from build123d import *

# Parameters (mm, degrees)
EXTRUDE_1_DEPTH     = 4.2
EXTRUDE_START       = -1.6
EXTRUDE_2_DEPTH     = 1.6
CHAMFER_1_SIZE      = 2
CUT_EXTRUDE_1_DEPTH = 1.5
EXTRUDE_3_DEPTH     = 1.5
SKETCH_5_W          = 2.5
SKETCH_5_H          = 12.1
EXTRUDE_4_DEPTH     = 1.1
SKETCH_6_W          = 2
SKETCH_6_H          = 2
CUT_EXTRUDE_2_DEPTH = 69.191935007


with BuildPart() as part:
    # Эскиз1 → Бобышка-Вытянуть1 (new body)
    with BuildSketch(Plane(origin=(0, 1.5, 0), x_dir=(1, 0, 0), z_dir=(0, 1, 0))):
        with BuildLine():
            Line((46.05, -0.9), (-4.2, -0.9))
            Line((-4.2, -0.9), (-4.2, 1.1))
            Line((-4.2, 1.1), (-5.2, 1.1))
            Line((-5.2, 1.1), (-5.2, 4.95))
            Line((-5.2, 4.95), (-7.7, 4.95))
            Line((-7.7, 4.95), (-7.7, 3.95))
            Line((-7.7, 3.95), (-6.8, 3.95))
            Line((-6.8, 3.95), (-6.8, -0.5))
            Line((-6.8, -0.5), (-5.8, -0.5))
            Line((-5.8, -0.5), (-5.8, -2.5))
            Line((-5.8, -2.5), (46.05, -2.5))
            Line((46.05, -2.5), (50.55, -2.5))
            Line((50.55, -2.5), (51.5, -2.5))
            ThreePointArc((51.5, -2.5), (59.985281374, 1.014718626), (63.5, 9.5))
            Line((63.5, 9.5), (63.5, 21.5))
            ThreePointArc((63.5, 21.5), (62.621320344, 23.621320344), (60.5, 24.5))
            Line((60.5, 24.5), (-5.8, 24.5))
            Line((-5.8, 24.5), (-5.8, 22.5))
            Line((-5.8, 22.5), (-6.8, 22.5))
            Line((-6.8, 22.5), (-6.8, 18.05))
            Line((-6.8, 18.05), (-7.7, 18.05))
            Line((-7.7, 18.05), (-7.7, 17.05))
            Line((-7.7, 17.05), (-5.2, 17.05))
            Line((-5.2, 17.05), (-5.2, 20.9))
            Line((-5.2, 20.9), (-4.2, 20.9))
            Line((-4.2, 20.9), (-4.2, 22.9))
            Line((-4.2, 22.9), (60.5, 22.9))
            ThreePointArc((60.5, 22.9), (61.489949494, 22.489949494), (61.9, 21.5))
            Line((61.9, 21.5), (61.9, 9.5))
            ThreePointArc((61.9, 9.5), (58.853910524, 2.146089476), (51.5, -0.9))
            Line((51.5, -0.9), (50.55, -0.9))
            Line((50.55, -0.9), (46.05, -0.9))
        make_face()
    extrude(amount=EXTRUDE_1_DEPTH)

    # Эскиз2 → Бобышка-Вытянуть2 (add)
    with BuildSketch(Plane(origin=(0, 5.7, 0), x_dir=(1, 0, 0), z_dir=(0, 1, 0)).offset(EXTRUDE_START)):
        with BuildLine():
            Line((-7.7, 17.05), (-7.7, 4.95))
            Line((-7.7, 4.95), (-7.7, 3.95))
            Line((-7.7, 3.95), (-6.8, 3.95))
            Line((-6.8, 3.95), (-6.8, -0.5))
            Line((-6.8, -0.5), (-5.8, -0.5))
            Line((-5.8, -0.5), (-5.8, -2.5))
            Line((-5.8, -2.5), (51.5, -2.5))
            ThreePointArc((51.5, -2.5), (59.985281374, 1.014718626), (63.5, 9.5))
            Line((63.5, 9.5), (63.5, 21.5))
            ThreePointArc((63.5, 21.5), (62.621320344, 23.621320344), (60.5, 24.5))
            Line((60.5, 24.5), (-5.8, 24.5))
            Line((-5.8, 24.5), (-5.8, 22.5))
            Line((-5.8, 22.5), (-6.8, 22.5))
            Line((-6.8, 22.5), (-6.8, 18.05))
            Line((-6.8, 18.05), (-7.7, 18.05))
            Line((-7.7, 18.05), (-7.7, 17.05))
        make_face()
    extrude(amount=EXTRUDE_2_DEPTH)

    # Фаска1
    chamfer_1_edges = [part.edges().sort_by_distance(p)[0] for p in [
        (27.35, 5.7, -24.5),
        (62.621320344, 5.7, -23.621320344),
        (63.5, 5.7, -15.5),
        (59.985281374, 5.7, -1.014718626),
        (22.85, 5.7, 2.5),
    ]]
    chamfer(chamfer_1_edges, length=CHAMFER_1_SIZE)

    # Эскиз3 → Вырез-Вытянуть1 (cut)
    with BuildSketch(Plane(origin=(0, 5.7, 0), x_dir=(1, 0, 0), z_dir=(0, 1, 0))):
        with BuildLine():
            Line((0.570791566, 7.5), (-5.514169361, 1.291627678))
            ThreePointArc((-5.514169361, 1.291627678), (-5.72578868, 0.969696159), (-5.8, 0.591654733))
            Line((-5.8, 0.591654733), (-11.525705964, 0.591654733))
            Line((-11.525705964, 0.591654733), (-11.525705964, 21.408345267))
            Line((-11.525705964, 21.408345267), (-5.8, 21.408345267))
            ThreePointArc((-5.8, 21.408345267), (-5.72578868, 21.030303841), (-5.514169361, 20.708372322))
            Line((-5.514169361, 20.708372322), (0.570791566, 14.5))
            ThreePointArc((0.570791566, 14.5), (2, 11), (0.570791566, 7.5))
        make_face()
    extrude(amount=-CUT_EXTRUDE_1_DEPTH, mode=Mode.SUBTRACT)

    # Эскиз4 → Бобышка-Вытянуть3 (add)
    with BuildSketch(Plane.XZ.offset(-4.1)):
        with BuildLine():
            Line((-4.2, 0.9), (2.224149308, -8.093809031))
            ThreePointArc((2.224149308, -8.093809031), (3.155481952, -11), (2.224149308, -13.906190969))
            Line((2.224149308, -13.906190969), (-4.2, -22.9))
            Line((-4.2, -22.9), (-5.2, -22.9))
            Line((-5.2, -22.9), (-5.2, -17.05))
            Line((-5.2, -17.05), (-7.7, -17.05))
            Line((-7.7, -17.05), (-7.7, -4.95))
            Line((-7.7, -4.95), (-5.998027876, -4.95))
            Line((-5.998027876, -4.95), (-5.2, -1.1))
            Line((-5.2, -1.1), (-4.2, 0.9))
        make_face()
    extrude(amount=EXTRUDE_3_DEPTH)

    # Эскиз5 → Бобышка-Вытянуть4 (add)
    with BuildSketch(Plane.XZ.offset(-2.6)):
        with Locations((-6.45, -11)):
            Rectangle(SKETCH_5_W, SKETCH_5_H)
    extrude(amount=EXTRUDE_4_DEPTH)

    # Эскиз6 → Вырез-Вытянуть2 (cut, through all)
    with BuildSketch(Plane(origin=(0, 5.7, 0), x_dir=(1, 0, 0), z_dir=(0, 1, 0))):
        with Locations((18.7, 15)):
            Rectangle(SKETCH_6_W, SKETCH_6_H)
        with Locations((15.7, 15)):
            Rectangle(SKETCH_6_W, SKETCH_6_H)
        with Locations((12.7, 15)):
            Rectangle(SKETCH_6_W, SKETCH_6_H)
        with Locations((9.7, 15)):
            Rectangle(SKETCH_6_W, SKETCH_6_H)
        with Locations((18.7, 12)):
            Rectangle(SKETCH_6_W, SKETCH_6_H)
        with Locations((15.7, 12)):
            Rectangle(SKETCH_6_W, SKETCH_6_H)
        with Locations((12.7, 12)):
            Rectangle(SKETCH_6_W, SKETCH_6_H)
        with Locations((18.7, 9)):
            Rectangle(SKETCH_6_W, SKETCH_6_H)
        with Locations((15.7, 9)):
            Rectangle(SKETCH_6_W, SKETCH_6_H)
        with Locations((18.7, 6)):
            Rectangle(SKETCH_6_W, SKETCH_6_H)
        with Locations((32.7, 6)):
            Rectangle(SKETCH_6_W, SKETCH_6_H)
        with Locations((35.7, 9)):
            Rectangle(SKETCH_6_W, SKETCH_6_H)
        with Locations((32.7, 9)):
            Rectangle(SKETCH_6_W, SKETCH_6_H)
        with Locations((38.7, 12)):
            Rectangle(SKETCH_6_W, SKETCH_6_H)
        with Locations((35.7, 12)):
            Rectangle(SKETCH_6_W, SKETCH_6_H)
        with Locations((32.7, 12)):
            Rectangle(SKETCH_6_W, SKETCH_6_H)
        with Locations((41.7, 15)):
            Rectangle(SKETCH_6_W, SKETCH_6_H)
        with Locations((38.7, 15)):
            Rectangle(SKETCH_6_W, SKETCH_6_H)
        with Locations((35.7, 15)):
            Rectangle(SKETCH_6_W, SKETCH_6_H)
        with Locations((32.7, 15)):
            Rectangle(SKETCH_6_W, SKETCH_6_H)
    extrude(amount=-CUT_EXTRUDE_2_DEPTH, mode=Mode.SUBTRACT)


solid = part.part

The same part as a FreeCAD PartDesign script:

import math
import FreeCAD as App
import Part
import Sketcher
from FreeCAD import Vector


def edges_at(feature, points):
    """Names of the edges that pass closest to the given points."""
    edges = feature.Shape.Edges
    near = lambda p: min(range(len(edges)), key=lambda i: edges[i].distToShape(Part.Vertex(*p))[0])
    return sorted({f"Edge{near(p) + 1}" for p in points})


def add_polygon(sketch, points):
    """Adds a closed chain of lines whose ends are joined by coincident constraints."""
    first, n = sketch.GeometryCount, len(points)
    for a, b in zip(points, points[1:] + points[:1]):
        sketch.addGeometry(Part.LineSegment(App.Vector(*a, 0), App.Vector(*b, 0)), False)
    for i in range(n):
        sketch.addConstraint(Sketcher.Constraint("Coincident", first + i, 2, first + (i + 1) % n, 1))

doc = App.newDocument("Part")
body = doc.addObject("PartDesign::Body", "Body")

# Sketch on XZ plane
sketch1 = doc.addObject("Sketcher::SketchObject", "Sketch")
body.addObject(sketch1)
sketch1.AttachmentSupport = (doc.XZ_Plane, [""])
sketch1.MapMode = "FlatFace"
sketch1.AttachmentOffset = App.Placement(Vector(0, 0, -1.5), App.Rotation())
sketch1.addGeometry([
    Part.LineSegment(Vector(-4.2, 0.9, 0), Vector(-4.2, -1.1, 0)),  # 0
    Part.LineSegment(Vector(-4.2, -1.1, 0), Vector(-5.2, -1.1, 0)),  # 1
    Part.LineSegment(Vector(-5.2, -1.1, 0), Vector(-5.2, -5, 0)),  # 2
    Part.LineSegment(Vector(-5.2, -5, 0), Vector(-7.7, -5, 0)),  # 3
    Part.LineSegment(Vector(-7.7, -5, 0), Vector(-7.7, -4, 0)),  # 4
    Part.LineSegment(Vector(-7.7, -4, 0), Vector(-6.8, -4, 0)),  # 5
    Part.LineSegment(Vector(-6.8, -4, 0), Vector(-6.8, 0.5, 0)),  # 6
    Part.LineSegment(Vector(-6.8, 0.5, 0), Vector(-5.8, 0.5, 0)),  # 7
    Part.LineSegment(Vector(-5.8, 0.5, 0), Vector(-5.8, 2.5, 0)),  # 8
    Part.LineSegment(Vector(-5.8, 2.5, 0), Vector(51.5, 2.5, 0)),  # 9
    Part.ArcOfCircle(Part.Circle(Vector(51.5, -9.5, 0), Vector(0, 0, 1), 12), math.radians(0), math.radians(90)),  # 10
    Part.LineSegment(Vector(63.5, -9.5, 0), Vector(63.5, -21.5, 0)),  # 11
    Part.ArcOfCircle(Part.Circle(Vector(60.5, -21.5, 0), Vector(0, 0, 1), 3), math.radians(-90), math.radians(0)),  # 12
    Part.LineSegment(Vector(60.5, -24.5, 0), Vector(-5.8, -24.5, 0)),  # 13
    Part.LineSegment(Vector(-5.8, -24.5, 0), Vector(-5.8, -22.5, 0)),  # 14
    Part.LineSegment(Vector(-5.8, -22.5, 0), Vector(-6.8, -22.5, 0)),  # 15
    Part.LineSegment(Vector(-6.8, -22.5, 0), Vector(-6.8, -18.1, 0)),  # 16
    Part.LineSegment(Vector(-6.8, -18.1, 0), Vector(-7.7, -18.1, 0)),  # 17
    Part.LineSegment(Vector(-7.7, -18.1, 0), Vector(-7.7, -17.1, 0)),  # 18
    Part.LineSegment(Vector(-7.7, -17.1, 0), Vector(-5.2, -17.1, 0)),  # 19
    Part.LineSegment(Vector(-5.2, -17.1, 0), Vector(-5.2, -20.9, 0)),  # 20
    Part.LineSegment(Vector(-5.2, -20.9, 0), Vector(-4.2, -20.9, 0)),  # 21
    Part.LineSegment(Vector(-4.2, -20.9, 0), Vector(-4.2, -22.9, 0)),  # 22
    Part.LineSegment(Vector(-4.2, -22.9, 0), Vector(60.5, -22.9, 0)),  # 23
    Part.ArcOfCircle(Part.Circle(Vector(60.5, -21.5, 0), Vector(0, 0, 1), 1.4), math.radians(-90), math.radians(0)),  # 24
    Part.LineSegment(Vector(61.9, -21.5, 0), Vector(61.9, -9.5, 0)),  # 25
    Part.ArcOfCircle(Part.Circle(Vector(51.5, -9.5, 0), Vector(0, 0, 1), 10.4), math.radians(0), math.radians(90)),  # 26
    Part.LineSegment(Vector(51.5, 0.9, 0), Vector(-4.2, 0.9, 0)),  # 27
], False)
sketch1.addConstraint([
    Sketcher.Constraint("Coincident", 0, 2, 1, 1),
    Sketcher.Constraint("Coincident", 1, 2, 2, 1),
    Sketcher.Constraint("Coincident", 2, 2, 3, 1),
    Sketcher.Constraint("Coincident", 3, 2, 4, 1),
    Sketcher.Constraint("Coincident", 4, 2, 5, 1),
    Sketcher.Constraint("Coincident", 5, 2, 6, 1),
    Sketcher.Constraint("Coincident", 6, 2, 7, 1),
    Sketcher.Constraint("Coincident", 7, 2, 8, 1),
    Sketcher.Constraint("Coincident", 8, 2, 9, 1),
    Sketcher.Constraint("Tangent", 9, 2, 10, 2),
    Sketcher.Constraint("Tangent", 10, 1, 11, 1),
    Sketcher.Constraint("Tangent", 11, 2, 12, 2),
    Sketcher.Constraint("Tangent", 12, 1, 13, 1),
    Sketcher.Constraint("Coincident", 13, 2, 14, 1),
    Sketcher.Constraint("Coincident", 14, 2, 15, 1),
    Sketcher.Constraint("Coincident", 15, 2, 16, 1),
    Sketcher.Constraint("Coincident", 16, 2, 17, 1),
    Sketcher.Constraint("Coincident", 17, 2, 18, 1),
    Sketcher.Constraint("Coincident", 18, 2, 19, 1),
    Sketcher.Constraint("Coincident", 19, 2, 20, 1),
    Sketcher.Constraint("Coincident", 20, 2, 21, 1),
    Sketcher.Constraint("Coincident", 21, 2, 22, 1),
    Sketcher.Constraint("Coincident", 22, 2, 23, 1),
    Sketcher.Constraint("Tangent", 23, 2, 24, 1),
    Sketcher.Constraint("Tangent", 24, 2, 25, 1),
    Sketcher.Constraint("Tangent", 25, 2, 26, 1),
    Sketcher.Constraint("Tangent", 26, 2, 27, 1),
    Sketcher.Constraint("Coincident", 27, 2, 0, 1),
    Sketcher.Constraint("Vertical", 0),
    Sketcher.Constraint("Horizontal", 1),
    Sketcher.Constraint("Vertical", 2),
    Sketcher.Constraint("Horizontal", 3),
    Sketcher.Constraint("Vertical", 4),
    Sketcher.Constraint("Horizontal", 5),
    Sketcher.Constraint("Vertical", 6),
    Sketcher.Constraint("Horizontal", 7),
    Sketcher.Constraint("Vertical", 8),
    Sketcher.Constraint("Horizontal", 9),
    Sketcher.Constraint("Vertical", 11),
    Sketcher.Constraint("Horizontal", 13),
    Sketcher.Constraint("Vertical", 14),
    Sketcher.Constraint("Horizontal", 15),
    Sketcher.Constraint("Vertical", 16),
    Sketcher.Constraint("Horizontal", 17),
    Sketcher.Constraint("Vertical", 18),
    Sketcher.Constraint("Horizontal", 19),
    Sketcher.Constraint("Vertical", 20),
    Sketcher.Constraint("Horizontal", 21),
    Sketcher.Constraint("Vertical", 22),
    Sketcher.Constraint("Horizontal", 23),
    Sketcher.Constraint("Vertical", 25),
    Sketcher.Constraint("Horizontal", 27),
    Sketcher.Constraint("Coincident", 24, 3, 12, 3),
    Sketcher.Constraint("Coincident", 26, 3, 10, 3),
    Sketcher.Constraint("Vertical", 8, 2, 13, 2),
    Sketcher.Constraint("Vertical", 6, 2, 15, 2),
    Sketcher.Constraint("Vertical", 4, 2, 17, 2),
    Sketcher.Constraint("Vertical", 2, 2, 19, 2),
    Sketcher.Constraint("Vertical", 0, 2, 21, 2),
    Sketcher.Constraint("Equal", 1, 7),
    Sketcher.Constraint("Equal", 21, 4),
    Sketcher.Constraint("Equal", 0, 8),
    Sketcher.Constraint("Equal", 8, 14),
    Sketcher.Constraint("Equal", 6, 16),
    Sketcher.Constraint("Equal", 4, 18),
    Sketcher.Constraint("Equal", 2, 20),
    Sketcher.Constraint("Radius", 10, 12.0),
    Sketcher.Constraint("Radius", 12, 3.0),
    Sketcher.Constraint("Radius", 24, 1.4),
    Sketcher.Constraint("DistanceX", 1, 2, 1, 1, 1.0),
    Sketcher.Constraint("DistanceY", 0, 2, 0, 1, 2.0),
    Sketcher.Constraint("DistanceY", 11, 2, 11, 1, 12.0),
    Sketcher.Constraint("DistanceX", 3, 2, 3, 1, 2.5),
    Sketcher.Constraint("DistanceX", 5, 1, 5, 2, 0.9),
    Sketcher.Constraint("DistanceX", 9, 1, 9, 2, 57.3),
    Sketcher.Constraint("DistanceY", 2, 2, 2, 1, 3.85),
    Sketcher.Constraint("DistanceX", -1, 1, 10, 3, 51.5),
    Sketcher.Constraint("DistanceY", 10, 3, -1, 1, 9.5),
])
pad1 = doc.addObject("PartDesign::Pad", "Pad")
body.addObject(pad1)
pad1.Profile = sketch1
pad1.Length = 4.2
pad1.Reversed = True

# Sketch on XZ plane
sketch2 = doc.addObject("Sketcher::SketchObject", "Sketch001")
body.addObject(sketch2)
sketch2.AttachmentSupport = (doc.XZ_Plane, [""])
sketch2.MapMode = "FlatFace"
sketch2.AttachmentOffset = App.Placement(Vector(0, 0, -4.1), App.Rotation())
sketch2.addGeometry([
    Part.LineSegment(Vector(-7.7, -4, 0), Vector(-6.8, -4, 0)),  # 0
    Part.LineSegment(Vector(-6.8, -4, 0), Vector(-6.8, 0.5, 0)),  # 1
    Part.LineSegment(Vector(-6.8, 0.5, 0), Vector(-5.8, 0.5, 0)),  # 2
    Part.LineSegment(Vector(-5.8, 0.5, 0), Vector(-5.8, 2.5, 0)),  # 3
    Part.LineSegment(Vector(-5.8, 2.5, 0), Vector(51.5, 2.5, 0)),  # 4
    Part.ArcOfCircle(Part.Circle(Vector(51.5, -9.5, 0), Vector(0, 0, 1), 12), math.radians(0), math.radians(90)),  # 5
    Part.LineSegment(Vector(63.5, -9.5, 0), Vector(63.5, -21.5, 0)),  # 6
    Part.ArcOfCircle(Part.Circle(Vector(60.5, -21.5, 0), Vector(0, 0, 1), 3), math.radians(-90), math.radians(0)),  # 7
    Part.LineSegment(Vector(60.5, -24.5, 0), Vector(-5.8, -24.5, 0)),  # 8
    Part.LineSegment(Vector(-5.8, -24.5, 0), Vector(-5.8, -22.5, 0)),  # 9
    Part.LineSegment(Vector(-5.8, -22.5, 0), Vector(-6.8, -22.5, 0)),  # 10
    Part.LineSegment(Vector(-6.8, -22.5, 0), Vector(-6.8, -18.1, 0)),  # 11
    Part.LineSegment(Vector(-6.8, -18.1, 0), Vector(-7.7, -18.1, 0)),  # 12
    Part.LineSegment(Vector(-7.7, -18.1, 0), Vector(-7.7, -4, 0)),  # 13
], False)
sketch2.addConstraint([
    Sketcher.Constraint("Coincident", 0, 2, 1, 1),
    Sketcher.Constraint("Coincident", 1, 2, 2, 1),
    Sketcher.Constraint("Coincident", 2, 2, 3, 1),
    Sketcher.Constraint("Coincident", 3, 2, 4, 1),
    Sketcher.Constraint("Tangent", 4, 2, 5, 2),
    Sketcher.Constraint("Tangent", 5, 1, 6, 1),
    Sketcher.Constraint("Tangent", 6, 2, 7, 2),
    Sketcher.Constraint("Tangent", 7, 1, 8, 1),
    Sketcher.Constraint("Coincident", 8, 2, 9, 1),
    Sketcher.Constraint("Coincident", 9, 2, 10, 1),
    Sketcher.Constraint("Coincident", 10, 2, 11, 1),
    Sketcher.Constraint("Coincident", 11, 2, 12, 1),
    Sketcher.Constraint("Coincident", 12, 2, 13, 1),
    Sketcher.Constraint("Coincident", 13, 2, 0, 1),
    Sketcher.Constraint("Horizontal", 0),
    Sketcher.Constraint("Vertical", 1),
    Sketcher.Constraint("Horizontal", 2),
    Sketcher.Constraint("Vertical", 3),
    Sketcher.Constraint("Horizontal", 4),
    Sketcher.Constraint("Vertical", 6),
    Sketcher.Constraint("Horizontal", 8),
    Sketcher.Constraint("Vertical", 9),
    Sketcher.Constraint("Horizontal", 10),
    Sketcher.Constraint("Vertical", 11),
    Sketcher.Constraint("Horizontal", 12),
    Sketcher.Constraint("Vertical", 13),
    Sketcher.Constraint("Vertical", 3, 2, 8, 2),
    Sketcher.Constraint("Vertical", 1, 2, 10, 2),
    Sketcher.Constraint("Equal", 3, 9),
    Sketcher.Constraint("Equal", 1, 11),
    Sketcher.Constraint("Radius", 5, 12.0),
    Sketcher.Constraint("Radius", 7, 3.0),
    Sketcher.Constraint("DistanceX", 2, 1, 2, 2, 1.0),
    Sketcher.Constraint("DistanceY", 3, 1, 3, 2, 2.0),
    Sketcher.Constraint("DistanceY", 6, 2, 6, 1, 12.0),
    Sketcher.Constraint("DistanceX", 0, 1, 0, 2, 0.9),
    Sketcher.Constraint("DistanceX", 4, 1, 4, 2, 57.3),
    Sketcher.Constraint("DistanceY", 13, 1, 13, 2, 14.1),
    Sketcher.Constraint("DistanceX", -1, 1, 5, 3, 51.5),
    Sketcher.Constraint("DistanceY", 5, 3, -1, 1, 9.5),
])
pad2 = doc.addObject("PartDesign::Pad", "Pad001")
body.addObject(pad2)
pad2.Profile = sketch2
pad2.Length = 1.6
pad2.Reversed = True
doc.recompute()

chamfer = doc.addObject("PartDesign::Chamfer", "Chamfer")
body.addObject(chamfer)
chamfer.Base = (pad2, edges_at(pad2, [
    (27.35, 5.7, -24.5),
    (62.621, 5.7, -23.621),
    (63.5, 5.7, -15.5),
    (59.985, 5.7, -1.015),
    (22.85, 5.7, 2.5),
]))
chamfer.Size = 2

# Sketch on XZ plane
sketch3 = doc.addObject("Sketcher::SketchObject", "Sketch002")
body.addObject(sketch3)
sketch3.AttachmentSupport = (doc.XZ_Plane, [""])
sketch3.MapMode = "FlatFace"
sketch3.AttachmentOffset = App.Placement(Vector(0, 0, -5.7), App.Rotation())
sketch3.addGeometry([
    Part.LineSegment(Vector(-5.5, -1.3, 0), Vector(0.6, -7.5, 0)),  # 0
    Part.ArcOfCircle(Part.Circle(Vector(-3, -11, 0), Vector(0, 0, 1), 5), math.radians(-44), math.radians(44)),  # 1
    Part.LineSegment(Vector(0.6, -14.5, 0), Vector(-5.5, -20.7, 0)),  # 2
    Part.ArcOfCircle(Part.Circle(Vector(-4.8, -21.4, 0), Vector(0, 0, 1), 1), math.radians(136), math.radians(180)),  # 3
    Part.LineSegment(Vector(-5.8, -21.4, 0), Vector(-11.5, -21.4, 0)),  # 4
    Part.LineSegment(Vector(-11.5, -21.4, 0), Vector(-11.5, -0.6, 0)),  # 5
    Part.LineSegment(Vector(-11.5, -0.6, 0), Vector(-5.8, -0.6, 0)),  # 6
    Part.ArcOfCircle(Part.Circle(Vector(-4.8, -0.6, 0), Vector(0, 0, 1), 1), math.radians(180), math.radians(224)),  # 7
], False)
sketch3.addConstraint([
    Sketcher.Constraint("Tangent", 0, 2, 1, 2),
    Sketcher.Constraint("Tangent", 1, 1, 2, 1),
    Sketcher.Constraint("Tangent", 2, 2, 3, 1),
    Sketcher.Constraint("Coincident", 3, 2, 4, 1),
    Sketcher.Constraint("Coincident", 4, 2, 5, 1),
    Sketcher.Constraint("Coincident", 5, 2, 6, 1),
    Sketcher.Constraint("Coincident", 6, 2, 7, 1),
    Sketcher.Constraint("Tangent", 7, 2, 0, 1),
    Sketcher.Constraint("Horizontal", 4),
    Sketcher.Constraint("Vertical", 5),
    Sketcher.Constraint("Horizontal", 6),
    Sketcher.Constraint("Equal", 3, 7),
    Sketcher.Constraint("Horizontal", 7, 3, 5, 2),
    Sketcher.Constraint("Vertical", 3, 3, 7, 3),
    Sketcher.Constraint("Vertical", 0, 2, 1, 1),
    Sketcher.Constraint("Radius", 3, 1.0),
    Sketcher.Constraint("DistanceY", 1, 3, -1, 1, 11.0),
    Sketcher.Constraint("DistanceY", 1, 1, 0, 2, 7.0),
    Sketcher.Constraint("DistanceX", 3, 3, -1, 1, 4.8),
    Sketcher.Constraint("Radius", 1, 5.000193),
    Sketcher.Constraint("DistanceY", 5, 1, 5, 2, 20.816691),
    Sketcher.Constraint("DistanceX", 4, 2, 4, 1, 5.725706),
    Sketcher.Constraint("DistanceX", -1, 1, 0, 2, 0.570792),
])
pocket1 = doc.addObject("PartDesign::Pocket", "Pocket")
body.addObject(pocket1)
pocket1.Profile = sketch3
pocket1.Length = 1.5
pocket1.Reversed = True

# Sketch on XZ plane
sketch4 = doc.addObject("Sketcher::SketchObject", "Sketch003")
body.addObject(sketch4)
sketch4.AttachmentSupport = (doc.XZ_Plane, [""])
sketch4.MapMode = "FlatFace"
sketch4.AttachmentOffset = App.Placement(Vector(0, 0, -4.1), App.Rotation())
sketch4.addGeometry([
    Part.LineSegment(Vector(2.2, -8.1, 0), Vector(-4.2, 0.9, 0)),  # 0
    Part.LineSegment(Vector(-4.2, 0.9, 0), Vector(-5.2, -1.1, 0)),  # 1
    Part.LineSegment(Vector(-5.2, -1.1, 0), Vector(-6, -5, 0)),  # 2
    Part.LineSegment(Vector(-6, -5, 0), Vector(-7.7, -5, 0)),  # 3
    Part.LineSegment(Vector(-7.7, -5, 0), Vector(-7.7, -17.1, 0)),  # 4
    Part.LineSegment(Vector(-7.7, -17.1, 0), Vector(-5.2, -17.1, 0)),  # 5
    Part.LineSegment(Vector(-5.2, -17.1, 0), Vector(-5.2, -22.9, 0)),  # 6
    Part.LineSegment(Vector(-5.2, -22.9, 0), Vector(-4.2, -22.9, 0)),  # 7
    Part.LineSegment(Vector(-4.2, -22.9, 0), Vector(2.2, -13.9, 0)),  # 8
    Part.ArcOfCircle(Part.Circle(Vector(-1.8, -11, 0), Vector(0, 0, 1), 5), math.radians(-36), math.radians(36)),  # 9
], False)
sketch4.addConstraint([
    Sketcher.Constraint("Coincident", 0, 2, 1, 1),
    Sketcher.Constraint("Coincident", 1, 2, 2, 1),
    Sketcher.Constraint("Coincident", 2, 2, 3, 1),
    Sketcher.Constraint("Coincident", 3, 2, 4, 1),
    Sketcher.Constraint("Coincident", 4, 2, 5, 1),
    Sketcher.Constraint("Coincident", 5, 2, 6, 1),
    Sketcher.Constraint("Coincident", 6, 2, 7, 1),
    Sketcher.Constraint("Coincident", 7, 2, 8, 1),
    Sketcher.Constraint("Tangent", 8, 2, 9, 1),
    Sketcher.Constraint("Tangent", 9, 2, 0, 1),
    Sketcher.Constraint("Horizontal", 3),
    Sketcher.Constraint("Vertical", 4),
    Sketcher.Constraint("Horizontal", 5),
    Sketcher.Constraint("Vertical", 6),
    Sketcher.Constraint("Horizontal", 7),
    Sketcher.Constraint("Vertical", 1, 2, 5, 2),
    Sketcher.Constraint("Vertical", 0, 2, 7, 2),
    Sketcher.Constraint("Vertical", 8, 2, 9, 2),
    Sketcher.Constraint("Radius", 9, 5.0),
    Sketcher.Constraint("DistanceX", 7, 1, 7, 2, 1.0),
    Sketcher.Constraint("DistanceX", 5, 1, 5, 2, 2.5),
    Sketcher.Constraint("DistanceY", 4, 2, 4, 1, 12.1),
    Sketcher.Constraint("DistanceY", 9, 3, -1, 1, 11.0),
    Sketcher.Constraint("DistanceY", 1, 2, 0, 2, 2.0),
    Sketcher.Constraint("DistanceY", 6, 2, 6, 1, 5.85),
    Sketcher.Constraint("DistanceX", 0, 2, -1, 1, 4.2),
    Sketcher.Constraint("DistanceY", -1, 1, 0, 2, 0.9),
    Sketcher.Constraint("DistanceX", 3, 2, 3, 1, 1.701972),
    Sketcher.Constraint("DistanceX", 9, 3, -1, 1, 1.844518),
])
pad3 = doc.addObject("PartDesign::Pad", "Pad002")
body.addObject(pad3)
pad3.Profile = sketch4
pad3.Length = 1.5

# Sketch on XZ plane
sketch5 = doc.addObject("Sketcher::SketchObject", "Sketch004")
body.addObject(sketch5)
sketch5.AttachmentSupport = (doc.XZ_Plane, [""])
sketch5.MapMode = "FlatFace"
sketch5.AttachmentOffset = App.Placement(Vector(0, 0, -2.6), App.Rotation())
add_polygon(sketch5, [(-7.7, -5), (-7.7, -17.1), (-5.2, -17.1), (-5.2, -5)])  # lines 0-3
sketch5.addConstraint([
    Sketcher.Constraint("Vertical", 0),
    Sketcher.Constraint("Horizontal", 1),
    Sketcher.Constraint("Vertical", 2),
    Sketcher.Constraint("Horizontal", 3),
    Sketcher.Constraint("DistanceX", 1, 1, 1, 2, 2.5),
    Sketcher.Constraint("DistanceY", 0, 2, 0, 1, 12.1),
    Sketcher.Constraint("DistanceX", 0, 2, -1, 1, 7.7),
    Sketcher.Constraint("DistanceY", 0, 2, -1, 1, 17.05),
])
pad4 = doc.addObject("PartDesign::Pad", "Pad003")
body.addObject(pad4)
pad4.Profile = sketch5
pad4.Length = 1.1

# Sketch on XZ plane
sketch6 = doc.addObject("Sketcher::SketchObject", "Sketch005")
body.addObject(sketch6)
sketch6.AttachmentSupport = (doc.XZ_Plane, [""])
sketch6.MapMode = "FlatFace"
sketch6.AttachmentOffset = App.Placement(Vector(0, 0, -5.7), App.Rotation())
add_polygon(sketch6, [(17.7, -16), (17.7, -14), (19.7, -14), (19.7, -16)])  # lines 0-3
add_polygon(sketch6, [(14.7, -16), (14.7, -14), (16.7, -14), (16.7, -16)])  # lines 4-7
add_polygon(sketch6, [(11.7, -16), (11.7, -14), (13.7, -14), (13.7, -16)])  # lines 8-11
add_polygon(sketch6, [(8.7, -16), (8.7, -14), (10.7, -14), (10.7, -16)])  # lines 12-15
add_polygon(sketch6, [(17.7, -13), (17.7, -11), (19.7, -11), (19.7, -13)])  # lines 16-19
add_polygon(sketch6, [(14.7, -13), (14.7, -11), (16.7, -11), (16.7, -13)])  # lines 20-23
add_polygon(sketch6, [(11.7, -13), (11.7, -11), (13.7, -11), (13.7, -13)])  # lines 24-27
add_polygon(sketch6, [(17.7, -10), (17.7, -8), (19.7, -8), (19.7, -10)])  # lines 28-31
add_polygon(sketch6, [(14.7, -10), (14.7, -8), (16.7, -8), (16.7, -10)])  # lines 32-35
add_polygon(sketch6, [(17.7, -7), (17.7, -5), (19.7, -5), (19.7, -7)])  # lines 36-39
add_polygon(sketch6, [(31.7, -7), (31.7, -5), (33.7, -5), (33.7, -7)])  # lines 40-43
add_polygon(sketch6, [(34.7, -10), (34.7, -8), (36.7, -8), (36.7, -10)])  # lines 44-47
add_polygon(sketch6, [(31.7, -10), (31.7, -8), (33.7, -8), (33.7, -10)])  # lines 48-51
add_polygon(sketch6, [(37.7, -13), (37.7, -11), (39.7, -11), (39.7, -13)])  # lines 52-55
add_polygon(sketch6, [(34.7, -13), (34.7, -11), (36.7, -11), (36.7, -13)])  # lines 56-59
add_polygon(sketch6, [(31.7, -13), (31.7, -11), (33.7, -11), (33.7, -13)])  # lines 60-63
add_polygon(sketch6, [(40.7, -16), (40.7, -14), (42.7, -14), (42.7, -16)])  # lines 64-67
add_polygon(sketch6, [(37.7, -16), (37.7, -14), (39.7, -14), (39.7, -16)])  # lines 68-71
add_polygon(sketch6, [(34.7, -16), (34.7, -14), (36.7, -14), (36.7, -16)])  # lines 72-75
add_polygon(sketch6, [(31.7, -16), (31.7, -14), (33.7, -14), (33.7, -16)])  # lines 76-79
sketch6.addConstraint([
    Sketcher.Constraint("Vertical", 0),
    Sketcher.Constraint("Horizontal", 1),
    Sketcher.Constraint("Vertical", 2),
    Sketcher.Constraint("Horizontal", 3),
    Sketcher.Constraint("Vertical", 4),
    Sketcher.Constraint("Horizontal", 5),
    Sketcher.Constraint("Vertical", 6),
    Sketcher.Constraint("Horizontal", 7),
    Sketcher.Constraint("Vertical", 8),
    Sketcher.Constraint("Horizontal", 9),
    Sketcher.Constraint("Vertical", 10),
    Sketcher.Constraint("Horizontal", 11),
    Sketcher.Constraint("Vertical", 12),
    Sketcher.Constraint("Horizontal", 13),
    Sketcher.Constraint("Vertical", 14),
    Sketcher.Constraint("Horizontal", 15),
    Sketcher.Constraint("Vertical", 16),
    Sketcher.Constraint("Horizontal", 17),
    Sketcher.Constraint("Vertical", 18),
    Sketcher.Constraint("Horizontal", 19),
    Sketcher.Constraint("Vertical", 20),
    Sketcher.Constraint("Horizontal", 21),
    Sketcher.Constraint("Vertical", 22),
    Sketcher.Constraint("Horizontal", 23),
    Sketcher.Constraint("Vertical", 24),
    Sketcher.Constraint("Horizontal", 25),
    Sketcher.Constraint("Vertical", 26),
    Sketcher.Constraint("Horizontal", 27),
    Sketcher.Constraint("Vertical", 28),
    Sketcher.Constraint("Horizontal", 29),
    Sketcher.Constraint("Vertical", 30),
    Sketcher.Constraint("Horizontal", 31),
    Sketcher.Constraint("Vertical", 32),
    Sketcher.Constraint("Horizontal", 33),
    Sketcher.Constraint("Vertical", 34),
    Sketcher.Constraint("Horizontal", 35),
    Sketcher.Constraint("Vertical", 36),
    Sketcher.Constraint("Horizontal", 37),
    Sketcher.Constraint("Vertical", 38),
    Sketcher.Constraint("Horizontal", 39),
    Sketcher.Constraint("Vertical", 40),
    Sketcher.Constraint("Horizontal", 41),
    Sketcher.Constraint("Vertical", 42),
    Sketcher.Constraint("Horizontal", 43),
    Sketcher.Constraint("Vertical", 44),
    Sketcher.Constraint("Horizontal", 45),
    Sketcher.Constraint("Vertical", 46),
    Sketcher.Constraint("Horizontal", 47),
    Sketcher.Constraint("Vertical", 48),
    Sketcher.Constraint("Horizontal", 49),
    Sketcher.Constraint("Vertical", 50),
    Sketcher.Constraint("Horizontal", 51),
    Sketcher.Constraint("Vertical", 52),
    Sketcher.Constraint("Horizontal", 53),
    Sketcher.Constraint("Vertical", 54),
    Sketcher.Constraint("Horizontal", 55),
    Sketcher.Constraint("Vertical", 56),
    Sketcher.Constraint("Horizontal", 57),
    Sketcher.Constraint("Vertical", 58),
    Sketcher.Constraint("Horizontal", 59),
    Sketcher.Constraint("Vertical", 60),
    Sketcher.Constraint("Horizontal", 61),
    Sketcher.Constraint("Vertical", 62),
    Sketcher.Constraint("Horizontal", 63),
    Sketcher.Constraint("Vertical", 64),
    Sketcher.Constraint("Horizontal", 65),
    Sketcher.Constraint("Vertical", 66),
    Sketcher.Constraint("Horizontal", 67),
    Sketcher.Constraint("Vertical", 68),
    Sketcher.Constraint("Horizontal", 69),
    Sketcher.Constraint("Vertical", 70),
    Sketcher.Constraint("Horizontal", 71),
    Sketcher.Constraint("Vertical", 72),
    Sketcher.Constraint("Horizontal", 73),
    Sketcher.Constraint("Vertical", 74),
    Sketcher.Constraint("Horizontal", 75),
    Sketcher.Constraint("Vertical", 76),
    Sketcher.Constraint("Horizontal", 77),
    Sketcher.Constraint("Vertical", 78),
    Sketcher.Constraint("Horizontal", 79),
    Sketcher.Constraint("Horizontal", 1, 2, 4, 2),
    Sketcher.Constraint("Horizontal", 3, 2, 6, 2),
    Sketcher.Constraint("Horizontal", 5, 2, 8, 2),
    Sketcher.Constraint("Horizontal", 7, 2, 10, 2),
    Sketcher.Constraint("Horizontal", 9, 2, 12, 2),
    Sketcher.Constraint("Horizontal", 11, 2, 14, 2),
    Sketcher.Constraint("Horizontal", 17, 2, 20, 2),
    Sketcher.Constraint("Horizontal", 19, 2, 22, 2),
    Sketcher.Constraint("Horizontal", 21, 2, 24, 2),
    Sketcher.Constraint("Horizontal", 23, 2, 26, 2),
    Sketcher.Constraint("Horizontal", 29, 2, 32, 2),
    Sketcher.Constraint("Horizontal", 31, 2, 34, 2),
    Sketcher.Constraint("Horizontal", 37, 2, 40, 2),
    Sketcher.Constraint("Horizontal", 39, 2, 42, 2),
    Sketcher.Constraint("Horizontal", 33, 2, 44, 2),
    Sketcher.Constraint("Horizontal", 35, 2, 46, 2),
    Sketcher.Constraint("Horizontal", 45, 2, 48, 2),
    Sketcher.Constraint("Horizontal", 47, 2, 50, 2),
    Sketcher.Constraint("Horizontal", 25, 2, 52, 2),
    Sketcher.Constraint("Horizontal", 27, 2, 54, 2),
    Sketcher.Constraint("Horizontal", 53, 2, 56, 2),
    Sketcher.Constraint("Horizontal", 55, 2, 58, 2),
    Sketcher.Constraint("Horizontal", 57, 2, 60, 2),
    Sketcher.Constraint("Horizontal", 59, 2, 62, 2),
    Sketcher.Constraint("Horizontal", 13, 2, 64, 2),
    Sketcher.Constraint("Horizontal", 15, 2, 66, 2),
    Sketcher.Constraint("Horizontal", 65, 2, 68, 2),
    Sketcher.Constraint("Horizontal", 67, 2, 70, 2),
    Sketcher.Constraint("Horizontal", 69, 2, 72, 2),
    Sketcher.Constraint("Horizontal", 71, 2, 74, 2),
    Sketcher.Constraint("Horizontal", 73, 2, 76, 2),
    Sketcher.Constraint("Horizontal", 75, 2, 78, 2),
    Sketcher.Constraint("Vertical", 3, 2, 16, 2),
    Sketcher.Constraint("Vertical", 2, 2, 17, 2),
    Sketcher.Constraint("Vertical", 7, 2, 20, 2),
    Sketcher.Constraint("Vertical", 6, 2, 21, 2),
    Sketcher.Constraint("Vertical", 11, 2, 24, 2),
    Sketcher.Constraint("Vertical", 10, 2, 25, 2),
    Sketcher.Constraint("Vertical", 19, 2, 28, 2),
    Sketcher.Constraint("Vertical", 18, 2, 29, 2),
    Sketcher.Constraint("Vertical", 23, 2, 32, 2),
    Sketcher.Constraint("Vertical", 22, 2, 33, 2),
    Sketcher.Constraint("Vertical", 31, 2, 36, 2),
    Sketcher.Constraint("Vertical", 30, 2, 37, 2),
    Sketcher.Constraint("Vertical", 43, 2, 48, 2),
    Sketcher.Constraint("Vertical", 42, 2, 49, 2),
    Sketcher.Constraint("Vertical", 47, 2, 56, 2),
    Sketcher.Constraint("Vertical", 46, 2, 57, 2),
    Sketcher.Constraint("Vertical", 51, 2, 60, 2),
    Sketcher.Constraint("Vertical", 50, 2, 61, 2),
    Sketcher.Constraint("Vertical", 55, 2, 68, 2),
    Sketcher.Constraint("Vertical", 54, 2, 69, 2),
    Sketcher.Constraint("Vertical", 59, 2, 72, 2),
    Sketcher.Constraint("Vertical", 58, 2, 73, 2),
    Sketcher.Constraint("Vertical", 63, 2, 76, 2),
    Sketcher.Constraint("Vertical", 62, 2, 77, 2),
    Sketcher.Constraint("Equal", 3, 5),
    Sketcher.Constraint("Equal", 7, 9),
    Sketcher.Constraint("Equal", 11, 13),
    Sketcher.Constraint("Equal", 39, 41),
    Sketcher.Constraint("Equal", 43, 45),
    Sketcher.Constraint("Equal", 51, 53),
    Sketcher.Constraint("Equal", 63, 65),
    Sketcher.Constraint("Equal", 79, 0),
    Sketcher.Constraint("Equal", 14, 16),
    Sketcher.Constraint("Equal", 26, 28),
    Sketcher.Constraint("Equal", 34, 36),
    Sketcher.Constraint("DistanceX", 1, 1, 1, 2, 2.0),
    Sketcher.Constraint("DistanceY", 0, 2, -1, 1, 14.0),
    Sketcher.Constraint("DistanceY", 16, 2, -1, 1, 11.0),
    Sketcher.Constraint("DistanceY", 28, 2, -1, 1, 8.0),
    Sketcher.Constraint("DistanceY", 36, 2, -1, 1, 5.0),
    Sketcher.Constraint("DistanceX", -1, 1, 0, 2, 17.7),
    Sketcher.Constraint("DistanceX", -1, 1, 4, 2, 14.7),
    Sketcher.Constraint("DistanceX", -1, 1, 8, 2, 11.7),
    Sketcher.Constraint("DistanceX", -1, 1, 12, 2, 8.7),
    Sketcher.Constraint("DistanceX", -1, 1, 40, 2, 31.7),
    Sketcher.Constraint("DistanceX", -1, 1, 44, 2, 34.7),
    Sketcher.Constraint("DistanceX", -1, 1, 52, 2, 37.7),
    Sketcher.Constraint("DistanceX", -1, 1, 64, 2, 40.7),
])
pocket2 = doc.addObject("PartDesign::Pocket", "Pocket001")
body.addObject(pocket2)
pocket2.Profile = sketch6
pocket2.Type = "ThroughAll"
pocket2.Reversed = True

doc.recompute()
